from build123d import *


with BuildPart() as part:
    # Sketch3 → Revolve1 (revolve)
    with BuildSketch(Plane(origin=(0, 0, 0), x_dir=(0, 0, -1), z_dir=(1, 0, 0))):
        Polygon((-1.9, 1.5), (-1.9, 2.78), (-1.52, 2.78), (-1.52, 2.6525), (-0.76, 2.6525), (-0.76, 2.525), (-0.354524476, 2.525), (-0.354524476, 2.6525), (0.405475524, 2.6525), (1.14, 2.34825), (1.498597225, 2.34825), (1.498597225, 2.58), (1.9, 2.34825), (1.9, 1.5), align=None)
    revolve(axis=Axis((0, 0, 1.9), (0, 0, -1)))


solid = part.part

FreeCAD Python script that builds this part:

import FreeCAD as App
import Part
import Sketcher
Q = App.Units.Quantity


def add_polygon(sketch, points):
    """Adds a closed chain of lines whose ends are joined by coincident constraints."""
    first, n = sketch.GeometryCount, len(points)
    for a, b in zip(points, points[1:] + points[:1]):
        sketch.addGeometry(Part.LineSegment(App.Vector(*a, 0), App.Vector(*b, 0)), False)
    for i in range(n):
        sketch.addConstraint(Sketcher.Constraint("Coincident", first + i, 2, first + (i + 1) % n, 1))

doc = App.newDocument("Part")
body = doc.addObject("PartDesign::Body", "Body")

# Sketch on YZ plane
sketch1 = body.newObject("Sketcher::SketchObject", "Sketch")
sketch1.AttachmentSupport = (doc.getObject("YZ_Plane"), [""])
sketch1.MapMode = "FlatFace"
add_polygon(sketch1, [(2.78, 1.9), (1.5, 1.9), (1.5, -1.9), (2.35, -1.9), (2.58, -1.5), (2.35, -1.5), (2.35, -1.14), (2.65, -0.41), (2.65, 0.35), (2.52, 0.35), (2.52, 0.76), (2.65, 0.76), (2.65, 1.52), (2.78, 1.52)])  # lines 0-13
sketch1.addConstraint(Sketcher.Constraint("Horizontal", 0))
sketch1.addConstraint(Sketcher.Constraint("Vertical", 1))
sketch1.addConstraint(Sketcher.Constraint("Horizontal", 2))
sketch1.addConstraint(Sketcher.Constraint("Horizontal", 4))
sketch1.addConstraint(Sketcher.Constraint("Vertical", 5))
sketch1.addConstraint(Sketcher.Constraint("Vertical", 7))
sketch1.addConstraint(Sketcher.Constraint("Horizontal", 8))
sketch1.addConstraint(Sketcher.Constraint("Vertical", 9))
sketch1.addConstraint(Sketcher.Constraint("Horizontal", 10))
sketch1.addConstraint(Sketcher.Constraint("Vertical", 11))
sketch1.addConstraint(Sketcher.Constraint("Horizontal", 12))
sketch1.addConstraint(Sketcher.Constraint("Vertical", 13))
sketch1.addConstraint(Sketcher.Constraint("Vertical", 2, 2, 4, 2))
sketch1.addConstraint(Sketcher.Constraint("Vertical", 7, 2, 10, 2))
sketch1.addConstraint(Sketcher.Constraint("Equal", 10, 12))
sketch1.addConstraint(Sketcher.Constraint("Equal", 7, 11))
sketch1.addConstraint(Sketcher.Constraint("Angle", 3, Q("60 deg")))
sketch1.addConstraint(Sketcher.Constraint("DistanceY", 1, 2, 1, 1, Q("3.8 mm")))
sketch1.addConstraint(Sketcher.Constraint("Angle", 6, Q("67.5 deg")))
sketch1.addConstraint(Sketcher.Constraint("DistanceX", 0, 2, 0, 1, Q("1.28 mm")))
sketch1.addConstraint(Sketcher.Constraint("DistanceY", 7, 1, 7, 2, Q("0.76 mm")))
sketch1.addConstraint(Sketcher.Constraint("DistanceY", 13, 1, 13, 2, Q("0.38 mm")))
sketch1.addConstraint(Sketcher.Constraint("DistanceX", -1, 1, 0, 2, Q("1.5 mm")))
sketch1.addConstraint(Sketcher.Constraint("DistanceY", -1, 1, 0, 2, Q("1.9 mm")))
sketch1.addConstraint(Sketcher.Constraint("DistanceY", 5, 2, 9, 2, Q("1.9 mm")))
sketch1.addConstraint(Sketcher.Constraint("DistanceX", -1, 1, 3, 2, Q("2.58 mm")))
sketch1.addConstraint(Sketcher.Constraint("DistanceX", 8, 2, 8, 1, Q("0.1275 mm")))
sketch1.addConstraint(Sketcher.Constraint("Distance", 3, Q("0.4635 mm")))
revolution = body.newObject("PartDesign::Revolution", "Revolution")
revolution.Profile = sketch1
revolution.ReferenceAxis = (sketch1, ["V_Axis"])
revolution.Angle = 360

doc.recompute()
